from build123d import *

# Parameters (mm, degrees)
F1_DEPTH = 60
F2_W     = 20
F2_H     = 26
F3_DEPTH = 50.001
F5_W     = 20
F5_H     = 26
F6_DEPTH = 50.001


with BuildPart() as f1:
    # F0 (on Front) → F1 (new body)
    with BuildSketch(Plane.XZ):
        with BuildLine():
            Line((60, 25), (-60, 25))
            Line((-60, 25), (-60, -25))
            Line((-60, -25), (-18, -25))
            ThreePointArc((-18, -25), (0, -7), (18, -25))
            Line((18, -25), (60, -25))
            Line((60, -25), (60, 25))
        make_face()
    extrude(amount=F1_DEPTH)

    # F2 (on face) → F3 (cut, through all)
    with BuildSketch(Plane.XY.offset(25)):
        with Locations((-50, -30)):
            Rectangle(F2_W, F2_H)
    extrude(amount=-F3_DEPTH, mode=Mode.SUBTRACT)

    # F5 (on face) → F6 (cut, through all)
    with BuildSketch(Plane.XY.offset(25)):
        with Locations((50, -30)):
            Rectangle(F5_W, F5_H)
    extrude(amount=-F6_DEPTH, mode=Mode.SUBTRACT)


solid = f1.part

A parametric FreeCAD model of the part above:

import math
import FreeCAD as App
import Part
import Sketcher
from FreeCAD import Vector
Q = App.Units.Quantity


def add_polygon(sketch, points):
    """Adds a closed chain of lines whose ends are joined by coincident constraints."""
    first, n = sketch.GeometryCount, len(points)
    for a, b in zip(points, points[1:] + points[:1]):
        sketch.addGeometry(Part.LineSegment(App.Vector(*a, 0), App.Vector(*b, 0)), False)
    for i in range(n):
        sketch.addConstraint(Sketcher.Constraint("Coincident", first + i, 2, first + (i + 1) % n, 1))

doc = App.newDocument("Part")
params = doc.addObject("Spreadsheet::Sheet", "Params")
for row, (alias, value) in enumerate([
    ("sketch1_radius", "18 mm"),
    ("sketch1_width", "120 mm"),
    ("sketch1_height", "50 mm"),
    ("pad1_length", "60 mm"),
    ("sketch2_width", "20 mm"),
    ("sketch2_height", "26 mm"),
    ("sketch3_width", "20 mm"),
    ("sketch3_height", "26 mm"),
], start=1):
    params.set(f"A{row}", alias)
    params.set(f"B{row}", "=" + value)
    params.setAlias(f"B{row}", alias)

body = doc.addObject("PartDesign::Body", "Body")

# Sketch on XZ plane
sketch1 = doc.addObject("Sketcher::SketchObject", "Sketch")
body.addObject(sketch1)
sketch1.AttachmentSupport = (doc.XZ_Plane, [""])
sketch1.MapMode = "FlatFace"
sketch1.addGeometry([
    Part.LineSegment(Vector(60, 25, 0), Vector(-60, 25, 0)),  # 0
    Part.LineSegment(Vector(-60, 25, 0), Vector(-60, -25, 0)),  # 1
    Part.LineSegment(Vector(-60, -25, 0), Vector(-18, -25, 0)),  # 2
    Part.ArcOfCircle(Part.Circle(Vector(0, -25, 0), Vector(0, 0, 1), 18), math.radians(0), math.radians(180)),  # 3
    Part.LineSegment(Vector(18, -25, 0), Vector(60, -25, 0)),  # 4
    Part.LineSegment(Vector(60, -25, 0), Vector(60, 25, 0)),  # 5
], False)
sketch1.addConstraint([
    Sketcher.Constraint("Coincident", 0, 2, 1, 1),
    Sketcher.Constraint("Coincident", 1, 2, 2, 1),
    Sketcher.Constraint("Coincident", 2, 2, 3, 2),
    Sketcher.Constraint("Coincident", 3, 1, 4, 1),
    Sketcher.Constraint("Coincident", 4, 2, 5, 1),
    Sketcher.Constraint("Coincident", 5, 2, 0, 1),
    Sketcher.Constraint("Horizontal", 0),
    Sketcher.Constraint("Vertical", 1),
    Sketcher.Constraint("Horizontal", 2),
    Sketcher.Constraint("Horizontal", 4),
    Sketcher.Constraint("Vertical", 5),
    Sketcher.Constraint("Symmetric", 0, 2, 4, 2, -1, 1),
    Sketcher.Constraint("Symmetric", 2, 2, 3, 1, -2),
    Sketcher.Constraint("Horizontal", 3, 3, 1, 2),
    Sketcher.Constraint("Radius", 3, Q("18 mm")),
    Sketcher.Constraint("DistanceX", 0, 2, 0, 1, Q("120 mm")),
    Sketcher.Constraint("DistanceY", 1, 2, 1, 1, Q("50 mm")),
])
sketch1.setExpression("Constraints[14]", "Params.sketch1_radius")
sketch1.setExpression("Constraints[15]", "Params.sketch1_width")
sketch1.setExpression("Constraints[16]", "Params.sketch1_height")
pad1 = doc.addObject("PartDesign::Pad", "Pad")
body.addObject(pad1)
pad1.Profile = sketch1
pad1.setExpression("Length", "Params.pad1_length")

# Sketch on XY plane
sketch2 = doc.addObject("Sketcher::SketchObject", "Sketch001")
body.addObject(sketch2)
sketch2.AttachmentSupport = (doc.XY_Plane, [""])
sketch2.MapMode = "FlatFace"
sketch2.AttachmentOffset = App.Placement(Vector(0, 0, 25), App.Rotation())
add_polygon(sketch2, [(-60, -17), (-60, -43), (-40, -43), (-40, -17)])  # lines 0-3
sketch2.addConstraint([
    Sketcher.Constraint("Vertical", 0),
    Sketcher.Constraint("Horizontal", 1),
    Sketcher.Constraint("Vertical", 2),
    Sketcher.Constraint("Horizontal", 3),
    Sketcher.Constraint("DistanceX", 1, 1, 1, 2, Q("20 mm")),
    Sketcher.Constraint("DistanceY", 0, 2, 0, 1, Q("26 mm")),
    Sketcher.Constraint("DistanceX", 0, 2, -1, 1, Q("60 mm")),
    Sketcher.Constraint("DistanceY", 0, 2, -1, 1, Q("43 mm")),
])
sketch2.setExpression("Constraints[8]", "Params.sketch2_width")
sketch2.setExpression("Constraints[9]", "Params.sketch2_height")
pocket1 = doc.addObject("PartDesign::Pocket", "Pocket")
body.addObject(pocket1)
pocket1.Profile = sketch2
pocket1.Type = "ThroughAll"

# Sketch on XY plane
sketch3 = doc.addObject("Sketcher::SketchObject", "Sketch002")
body.addObject(sketch3)
sketch3.AttachmentSupport = (doc.XY_Plane, [""])
sketch3.MapMode = "FlatFace"
sketch3.AttachmentOffset = App.Placement(Vector(0, 0, 25), App.Rotation())
add_polygon(sketch3, [(40, -17), (40, -43), (60, -43), (60, -17)])  # lines 0-3
sketch3.addConstraint([
    Sketcher.Constraint("Vertical", 0),
    Sketcher.Constraint("Horizontal", 1),
    Sketcher.Constraint("Vertical", 2),
    Sketcher.Constraint("Horizontal", 3),
    Sketcher.Constraint("DistanceX", 1, 1, 1, 2, Q("20 mm")),
    Sketcher.Constraint("DistanceY", 0, 2, 0, 1, Q("26 mm")),
    Sketcher.Constraint("DistanceX", -1, 1, 0, 2, Q("40 mm")),
    Sketcher.Constraint("DistanceY", 0, 2, -1, 1, Q("43 mm")),
])
sketch3.setExpression("Constraints[8]", "Params.sketch3_width")
sketch3.setExpression("Constraints[9]", "Params.sketch3_height")
pocket2 = doc.addObject("PartDesign::Pocket", "Pocket001")
body.addObject(pocket2)
pocket2.Profile = sketch3
pocket2.Type = "ThroughAll"

doc.recompute()
